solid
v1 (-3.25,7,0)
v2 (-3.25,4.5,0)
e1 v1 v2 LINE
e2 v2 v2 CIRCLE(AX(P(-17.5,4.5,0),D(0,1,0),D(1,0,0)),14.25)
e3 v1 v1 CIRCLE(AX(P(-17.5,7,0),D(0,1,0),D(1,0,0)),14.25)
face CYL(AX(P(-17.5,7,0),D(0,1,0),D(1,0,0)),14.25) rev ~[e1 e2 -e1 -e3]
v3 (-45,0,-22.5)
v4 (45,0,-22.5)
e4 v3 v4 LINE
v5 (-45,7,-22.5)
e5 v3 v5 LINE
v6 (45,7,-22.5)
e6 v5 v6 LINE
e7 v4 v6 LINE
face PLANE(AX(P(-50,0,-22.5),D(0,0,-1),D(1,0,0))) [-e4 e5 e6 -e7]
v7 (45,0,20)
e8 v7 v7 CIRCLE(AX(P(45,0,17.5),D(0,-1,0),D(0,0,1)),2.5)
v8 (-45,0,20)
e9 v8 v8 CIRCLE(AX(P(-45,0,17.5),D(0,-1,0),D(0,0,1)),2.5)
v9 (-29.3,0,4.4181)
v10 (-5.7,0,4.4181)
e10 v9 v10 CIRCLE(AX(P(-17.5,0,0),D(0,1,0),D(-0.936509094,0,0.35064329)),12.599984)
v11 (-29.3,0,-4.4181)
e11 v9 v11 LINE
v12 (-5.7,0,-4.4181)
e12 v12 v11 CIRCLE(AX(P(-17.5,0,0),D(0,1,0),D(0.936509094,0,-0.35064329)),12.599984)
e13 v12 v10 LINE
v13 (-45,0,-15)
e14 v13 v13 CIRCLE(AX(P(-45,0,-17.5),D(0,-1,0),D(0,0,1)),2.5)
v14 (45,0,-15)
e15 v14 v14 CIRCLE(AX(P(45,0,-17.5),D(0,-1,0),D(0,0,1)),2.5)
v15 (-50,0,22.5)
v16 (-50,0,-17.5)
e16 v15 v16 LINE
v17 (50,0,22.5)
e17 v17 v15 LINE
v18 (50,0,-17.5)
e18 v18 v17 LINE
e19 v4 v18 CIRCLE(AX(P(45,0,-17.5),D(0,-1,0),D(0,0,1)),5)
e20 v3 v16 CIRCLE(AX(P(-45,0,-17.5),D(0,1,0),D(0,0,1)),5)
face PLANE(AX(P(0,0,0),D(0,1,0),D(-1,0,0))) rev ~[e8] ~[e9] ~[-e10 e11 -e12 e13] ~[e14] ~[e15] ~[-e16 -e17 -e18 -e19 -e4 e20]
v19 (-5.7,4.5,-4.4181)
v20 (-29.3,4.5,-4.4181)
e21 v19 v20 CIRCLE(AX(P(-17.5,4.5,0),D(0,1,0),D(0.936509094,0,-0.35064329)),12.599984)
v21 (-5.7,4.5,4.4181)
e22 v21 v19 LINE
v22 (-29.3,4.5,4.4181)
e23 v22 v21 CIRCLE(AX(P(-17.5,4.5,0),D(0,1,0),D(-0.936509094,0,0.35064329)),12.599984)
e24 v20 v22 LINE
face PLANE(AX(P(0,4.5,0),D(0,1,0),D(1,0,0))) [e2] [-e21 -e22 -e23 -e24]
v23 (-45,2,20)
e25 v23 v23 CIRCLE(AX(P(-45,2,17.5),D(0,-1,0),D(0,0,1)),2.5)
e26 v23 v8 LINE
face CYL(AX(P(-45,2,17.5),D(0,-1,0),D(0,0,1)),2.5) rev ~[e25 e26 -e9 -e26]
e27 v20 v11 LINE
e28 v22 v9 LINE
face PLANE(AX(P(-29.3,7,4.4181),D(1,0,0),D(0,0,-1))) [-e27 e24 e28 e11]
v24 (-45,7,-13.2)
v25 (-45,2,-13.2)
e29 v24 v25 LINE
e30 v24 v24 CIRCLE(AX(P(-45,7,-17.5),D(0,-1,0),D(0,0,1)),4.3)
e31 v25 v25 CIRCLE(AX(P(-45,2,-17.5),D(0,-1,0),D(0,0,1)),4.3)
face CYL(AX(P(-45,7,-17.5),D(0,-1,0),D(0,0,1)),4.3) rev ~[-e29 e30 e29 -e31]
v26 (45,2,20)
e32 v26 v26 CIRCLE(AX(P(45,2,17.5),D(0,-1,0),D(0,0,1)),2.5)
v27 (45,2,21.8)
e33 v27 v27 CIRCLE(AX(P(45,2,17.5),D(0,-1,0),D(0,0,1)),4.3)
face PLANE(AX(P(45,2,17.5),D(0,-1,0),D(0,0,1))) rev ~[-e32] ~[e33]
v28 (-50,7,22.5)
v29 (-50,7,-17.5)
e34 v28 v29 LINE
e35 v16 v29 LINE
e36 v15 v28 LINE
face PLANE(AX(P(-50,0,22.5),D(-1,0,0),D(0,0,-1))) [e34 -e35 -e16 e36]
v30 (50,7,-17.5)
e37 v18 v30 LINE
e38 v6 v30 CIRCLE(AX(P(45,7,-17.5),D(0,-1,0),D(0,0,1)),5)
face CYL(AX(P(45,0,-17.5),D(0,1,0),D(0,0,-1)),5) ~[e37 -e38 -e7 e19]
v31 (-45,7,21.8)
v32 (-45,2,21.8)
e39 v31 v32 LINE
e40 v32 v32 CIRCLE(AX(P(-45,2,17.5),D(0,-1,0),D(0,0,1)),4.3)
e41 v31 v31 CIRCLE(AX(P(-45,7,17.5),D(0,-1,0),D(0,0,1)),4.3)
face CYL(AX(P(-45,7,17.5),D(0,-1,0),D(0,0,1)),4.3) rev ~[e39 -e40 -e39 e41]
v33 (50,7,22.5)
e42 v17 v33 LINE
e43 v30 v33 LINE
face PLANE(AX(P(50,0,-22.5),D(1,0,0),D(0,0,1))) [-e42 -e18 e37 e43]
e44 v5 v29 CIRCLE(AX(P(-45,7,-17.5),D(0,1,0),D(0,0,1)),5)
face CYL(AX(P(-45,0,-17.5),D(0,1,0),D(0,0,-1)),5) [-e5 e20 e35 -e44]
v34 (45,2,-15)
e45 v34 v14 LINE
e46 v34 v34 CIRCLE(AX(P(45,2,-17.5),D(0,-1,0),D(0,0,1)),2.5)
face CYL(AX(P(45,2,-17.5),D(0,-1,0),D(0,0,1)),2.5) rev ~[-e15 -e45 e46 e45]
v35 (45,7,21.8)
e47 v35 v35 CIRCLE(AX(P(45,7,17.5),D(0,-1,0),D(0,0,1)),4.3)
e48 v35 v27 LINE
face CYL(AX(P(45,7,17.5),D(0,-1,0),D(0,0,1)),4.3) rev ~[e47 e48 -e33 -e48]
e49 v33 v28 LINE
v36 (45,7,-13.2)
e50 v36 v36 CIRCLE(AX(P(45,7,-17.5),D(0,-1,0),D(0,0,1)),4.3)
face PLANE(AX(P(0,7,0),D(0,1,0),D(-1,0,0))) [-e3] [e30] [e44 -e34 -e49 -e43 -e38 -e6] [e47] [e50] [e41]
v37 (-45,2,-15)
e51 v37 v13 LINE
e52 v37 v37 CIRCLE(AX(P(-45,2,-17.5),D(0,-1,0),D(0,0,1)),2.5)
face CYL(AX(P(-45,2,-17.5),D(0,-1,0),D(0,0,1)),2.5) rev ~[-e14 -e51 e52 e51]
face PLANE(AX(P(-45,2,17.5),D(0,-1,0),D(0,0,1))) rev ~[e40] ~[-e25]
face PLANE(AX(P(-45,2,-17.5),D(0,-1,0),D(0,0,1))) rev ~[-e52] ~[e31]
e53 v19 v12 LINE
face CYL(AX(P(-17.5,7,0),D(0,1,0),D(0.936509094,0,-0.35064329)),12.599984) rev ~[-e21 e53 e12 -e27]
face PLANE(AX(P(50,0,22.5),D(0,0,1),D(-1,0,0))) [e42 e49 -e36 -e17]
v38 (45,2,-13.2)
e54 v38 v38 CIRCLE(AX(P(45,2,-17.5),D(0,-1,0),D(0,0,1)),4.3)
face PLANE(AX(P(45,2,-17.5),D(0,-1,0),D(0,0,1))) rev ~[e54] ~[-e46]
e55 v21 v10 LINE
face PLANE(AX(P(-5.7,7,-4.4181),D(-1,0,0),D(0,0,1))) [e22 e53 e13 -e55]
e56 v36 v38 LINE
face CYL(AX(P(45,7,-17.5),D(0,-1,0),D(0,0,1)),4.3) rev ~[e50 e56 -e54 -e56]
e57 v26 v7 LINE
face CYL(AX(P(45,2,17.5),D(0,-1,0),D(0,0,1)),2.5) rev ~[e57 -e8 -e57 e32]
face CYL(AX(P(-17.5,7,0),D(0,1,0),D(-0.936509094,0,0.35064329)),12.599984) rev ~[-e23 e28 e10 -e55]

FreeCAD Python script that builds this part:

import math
import FreeCAD as App
import Part
import Sketcher

V = App.Vector


def edges_at(feature, points):
    """Names of the edges that pass closest to the given points."""
    edges = feature.Shape.Edges
    near = lambda p: min(range(len(edges)), key=lambda i: edges[i].distToShape(Part.Vertex(*p))[0])
    return sorted({f"Edge{near(p) + 1}" for p in points})


def add_polygon(sketch, points):
    """Adds a closed chain of lines whose ends are joined by coincident constraints."""
    first, n = sketch.GeometryCount, len(points)
    for a, b in zip(points, points[1:] + points[:1]):
        sketch.addGeometry(Part.LineSegment(App.Vector(*a, 0), App.Vector(*b, 0)), False)
    for i in range(n):
        sketch.addConstraint(Sketcher.Constraint("Coincident", first + i, 2, first + (i + 1) % n, 1))

doc = App.newDocument("Part")
body = doc.addObject("PartDesign::Body", "Body")

# Sketch on XZ plane
sketch1 = body.newObject("Sketcher::SketchObject", "Sketch")
sketch1.AttachmentSupport = (doc.getObject("XZ_Plane"), [""])
sketch1.MapMode = "FlatFace"
add_polygon(sketch1, [(50, -22), (-50, -22), (-50, 22), (50, 22)])  # lines 0-3
sketch1.addConstraint([
    Sketcher.Constraint("Horizontal", 0),
    Sketcher.Constraint("Vertical", 1),
    Sketcher.Constraint("Horizontal", 2),
    Sketcher.Constraint("Vertical", 3),
    Sketcher.Constraint("Symmetric", 0, 2, 2, 2, -1, 1),
    Sketcher.Constraint("DistanceX", 0, 2, 0, 1, 100.0),
    Sketcher.Constraint("DistanceY", 1, 1, 1, 2, 45.0),
])
pad1 = body.newObject("PartDesign::Pad", "Pad")
pad1.Profile = sketch1
pad1.Length = 7
pad1.Reversed = True

# Sketch on XZ plane
sketch2 = body.newObject("Sketcher::SketchObject", "Sketch001")
sketch2.AttachmentSupport = (doc.getObject("XZ_Plane"), [""])
sketch2.MapMode = "FlatFace"
sketch2.AttachmentOffset = App.Placement(V(0, 0, -7), App.Rotation())
sketch2.addGeometry([
    Part.LineSegment(V(-6, 4, 0), V(-6, -4, 0)),
    Part.ArcOfCircle(Part.Circle(V(-18, 0, 0), V(0, 0, 1), 13), math.radians(-159), math.radians(-21)),
    Part.LineSegment(V(-29, -4, 0), V(-29, 4, 0)),
    Part.ArcOfCircle(Part.Circle(V(-18, 0, 0), V(0, 0, 1), 13), math.radians(21), math.radians(159)),
], False)
sketch2.addConstraint([
    Sketcher.Constraint("Coincident", 0, 2, 1, 2),
    Sketcher.Constraint("Coincident", 1, 1, 2, 1),
    Sketcher.Constraint("Coincident", 2, 2, 3, 2),
    Sketcher.Constraint("Coincident", 3, 1, 0, 1),
    Sketcher.Constraint("Vertical", 0),
    Sketcher.Constraint("Vertical", 2),
    Sketcher.Constraint("Coincident", 3, 3, 1, 3),
    Sketcher.Constraint("Equal", 1, 3),
    Sketcher.Constraint("PointOnObject", 1, 3, -1),
    Sketcher.Constraint("Horizontal", 0, 2, 1, 1),
    Sketcher.Constraint("Radius", 1, 12.6),
    Sketcher.Constraint("DistanceX", 1, 3, 0, 2, 11.8),
    Sketcher.Constraint("DistanceX", 1, 3, -1, 1, 17.5),
])
pocket1 = body.newObject("PartDesign::Pocket", "Pocket")
pocket1.Profile = sketch2
pocket1.Type = "ThroughAll"
pocket1.Midplane = True

# Sketch on XZ plane
sketch3 = body.newObject("Sketcher::SketchObject", "Sketch002")
sketch3.AttachmentSupport = (doc.getObject("XZ_Plane"), [""])
sketch3.MapMode = "FlatFace"
sketch3.AttachmentOffset = App.Placement(V(0, 0, -7), App.Rotation())
sketch3.addGeometry(Part.Circle(V(-18, 0, 0), V(0, 0, 1), 14), False)
sketch3.addConstraint([
    Sketcher.Constraint("PointOnObject", 0, 3, -1),
    Sketcher.Constraint("Diameter", 0, 28.5),
    Sketcher.Constraint("DistanceX", 0, 3, -1, 1, 17.5),
])
pocket2 = body.newObject("PartDesign::Pocket", "Pocket001")
pocket2.Profile = sketch3
pocket2.Length = 2.5
pocket2.Reversed = True
doc.recompute()

fillet = body.newObject("PartDesign::Fillet", "Fillet")
fillet.Base = (pocket2, edges_at(pocket2, [(-50, 3.5, -22.5), (50, 3.5, -22.5)]))
fillet.Radius = 5

# Sketch on XZ plane
sketch4 = body.newObject("Sketcher::SketchObject", "Sketch003")
sketch4.AttachmentSupport = (doc.getObject("XZ_Plane"), [""])
sketch4.MapMode = "FlatFace"
sketch4.AttachmentOffset = App.Placement(V(0, 0, -7), App.Rotation())
sketch4.addGeometry([
    Part.Circle(V(-45, -17.5, 0), V(0, 0, 1), 2.5),
    Part.Circle(V(45, -17.5, 0), V(0, 0, 1), 2.5),
    Part.Circle(V(-45, 17.5, 0), V(0, 0, 1), 2.5),
    Part.Circle(V(45, 17.5, 0), V(0, 0, 1), 2.5),
], False)
sketch4.addConstraint([
    Sketcher.Constraint("Equal", 0, 1),
    Sketcher.Constraint("Equal", 1, 2),
    Sketcher.Constraint("Equal", 2, 3),
    Sketcher.Constraint("Symmetric", 1, 3, 2, 3, -1, 1),
    Sketcher.Constraint("Symmetric", 0, 3, 3, 3, -1, 1),
    Sketcher.Constraint("Symmetric", 0, 3, 1, 3, -2),
    Sketcher.Constraint("Diameter", 0, 5.0),
    Sketcher.Constraint("DistanceX", 0, 3, -1, 1, 45.0),
    Sketcher.Constraint("DistanceY", 0, 3, 2, 3, 35.0),
])
doc.recompute()
hole = body.newObject("PartDesign::Hole", "Hole")
hole.Profile = sketch4
hole.ThreadType = "None"
hole.Diameter = 5
hole.DepthType = "ThroughAll"
hole.HoleCutType = "Counterbore"
hole.HoleCutDiameter = 8.6
hole.HoleCutDepth = 5
hole.Reversed = True

doc.recompute()
